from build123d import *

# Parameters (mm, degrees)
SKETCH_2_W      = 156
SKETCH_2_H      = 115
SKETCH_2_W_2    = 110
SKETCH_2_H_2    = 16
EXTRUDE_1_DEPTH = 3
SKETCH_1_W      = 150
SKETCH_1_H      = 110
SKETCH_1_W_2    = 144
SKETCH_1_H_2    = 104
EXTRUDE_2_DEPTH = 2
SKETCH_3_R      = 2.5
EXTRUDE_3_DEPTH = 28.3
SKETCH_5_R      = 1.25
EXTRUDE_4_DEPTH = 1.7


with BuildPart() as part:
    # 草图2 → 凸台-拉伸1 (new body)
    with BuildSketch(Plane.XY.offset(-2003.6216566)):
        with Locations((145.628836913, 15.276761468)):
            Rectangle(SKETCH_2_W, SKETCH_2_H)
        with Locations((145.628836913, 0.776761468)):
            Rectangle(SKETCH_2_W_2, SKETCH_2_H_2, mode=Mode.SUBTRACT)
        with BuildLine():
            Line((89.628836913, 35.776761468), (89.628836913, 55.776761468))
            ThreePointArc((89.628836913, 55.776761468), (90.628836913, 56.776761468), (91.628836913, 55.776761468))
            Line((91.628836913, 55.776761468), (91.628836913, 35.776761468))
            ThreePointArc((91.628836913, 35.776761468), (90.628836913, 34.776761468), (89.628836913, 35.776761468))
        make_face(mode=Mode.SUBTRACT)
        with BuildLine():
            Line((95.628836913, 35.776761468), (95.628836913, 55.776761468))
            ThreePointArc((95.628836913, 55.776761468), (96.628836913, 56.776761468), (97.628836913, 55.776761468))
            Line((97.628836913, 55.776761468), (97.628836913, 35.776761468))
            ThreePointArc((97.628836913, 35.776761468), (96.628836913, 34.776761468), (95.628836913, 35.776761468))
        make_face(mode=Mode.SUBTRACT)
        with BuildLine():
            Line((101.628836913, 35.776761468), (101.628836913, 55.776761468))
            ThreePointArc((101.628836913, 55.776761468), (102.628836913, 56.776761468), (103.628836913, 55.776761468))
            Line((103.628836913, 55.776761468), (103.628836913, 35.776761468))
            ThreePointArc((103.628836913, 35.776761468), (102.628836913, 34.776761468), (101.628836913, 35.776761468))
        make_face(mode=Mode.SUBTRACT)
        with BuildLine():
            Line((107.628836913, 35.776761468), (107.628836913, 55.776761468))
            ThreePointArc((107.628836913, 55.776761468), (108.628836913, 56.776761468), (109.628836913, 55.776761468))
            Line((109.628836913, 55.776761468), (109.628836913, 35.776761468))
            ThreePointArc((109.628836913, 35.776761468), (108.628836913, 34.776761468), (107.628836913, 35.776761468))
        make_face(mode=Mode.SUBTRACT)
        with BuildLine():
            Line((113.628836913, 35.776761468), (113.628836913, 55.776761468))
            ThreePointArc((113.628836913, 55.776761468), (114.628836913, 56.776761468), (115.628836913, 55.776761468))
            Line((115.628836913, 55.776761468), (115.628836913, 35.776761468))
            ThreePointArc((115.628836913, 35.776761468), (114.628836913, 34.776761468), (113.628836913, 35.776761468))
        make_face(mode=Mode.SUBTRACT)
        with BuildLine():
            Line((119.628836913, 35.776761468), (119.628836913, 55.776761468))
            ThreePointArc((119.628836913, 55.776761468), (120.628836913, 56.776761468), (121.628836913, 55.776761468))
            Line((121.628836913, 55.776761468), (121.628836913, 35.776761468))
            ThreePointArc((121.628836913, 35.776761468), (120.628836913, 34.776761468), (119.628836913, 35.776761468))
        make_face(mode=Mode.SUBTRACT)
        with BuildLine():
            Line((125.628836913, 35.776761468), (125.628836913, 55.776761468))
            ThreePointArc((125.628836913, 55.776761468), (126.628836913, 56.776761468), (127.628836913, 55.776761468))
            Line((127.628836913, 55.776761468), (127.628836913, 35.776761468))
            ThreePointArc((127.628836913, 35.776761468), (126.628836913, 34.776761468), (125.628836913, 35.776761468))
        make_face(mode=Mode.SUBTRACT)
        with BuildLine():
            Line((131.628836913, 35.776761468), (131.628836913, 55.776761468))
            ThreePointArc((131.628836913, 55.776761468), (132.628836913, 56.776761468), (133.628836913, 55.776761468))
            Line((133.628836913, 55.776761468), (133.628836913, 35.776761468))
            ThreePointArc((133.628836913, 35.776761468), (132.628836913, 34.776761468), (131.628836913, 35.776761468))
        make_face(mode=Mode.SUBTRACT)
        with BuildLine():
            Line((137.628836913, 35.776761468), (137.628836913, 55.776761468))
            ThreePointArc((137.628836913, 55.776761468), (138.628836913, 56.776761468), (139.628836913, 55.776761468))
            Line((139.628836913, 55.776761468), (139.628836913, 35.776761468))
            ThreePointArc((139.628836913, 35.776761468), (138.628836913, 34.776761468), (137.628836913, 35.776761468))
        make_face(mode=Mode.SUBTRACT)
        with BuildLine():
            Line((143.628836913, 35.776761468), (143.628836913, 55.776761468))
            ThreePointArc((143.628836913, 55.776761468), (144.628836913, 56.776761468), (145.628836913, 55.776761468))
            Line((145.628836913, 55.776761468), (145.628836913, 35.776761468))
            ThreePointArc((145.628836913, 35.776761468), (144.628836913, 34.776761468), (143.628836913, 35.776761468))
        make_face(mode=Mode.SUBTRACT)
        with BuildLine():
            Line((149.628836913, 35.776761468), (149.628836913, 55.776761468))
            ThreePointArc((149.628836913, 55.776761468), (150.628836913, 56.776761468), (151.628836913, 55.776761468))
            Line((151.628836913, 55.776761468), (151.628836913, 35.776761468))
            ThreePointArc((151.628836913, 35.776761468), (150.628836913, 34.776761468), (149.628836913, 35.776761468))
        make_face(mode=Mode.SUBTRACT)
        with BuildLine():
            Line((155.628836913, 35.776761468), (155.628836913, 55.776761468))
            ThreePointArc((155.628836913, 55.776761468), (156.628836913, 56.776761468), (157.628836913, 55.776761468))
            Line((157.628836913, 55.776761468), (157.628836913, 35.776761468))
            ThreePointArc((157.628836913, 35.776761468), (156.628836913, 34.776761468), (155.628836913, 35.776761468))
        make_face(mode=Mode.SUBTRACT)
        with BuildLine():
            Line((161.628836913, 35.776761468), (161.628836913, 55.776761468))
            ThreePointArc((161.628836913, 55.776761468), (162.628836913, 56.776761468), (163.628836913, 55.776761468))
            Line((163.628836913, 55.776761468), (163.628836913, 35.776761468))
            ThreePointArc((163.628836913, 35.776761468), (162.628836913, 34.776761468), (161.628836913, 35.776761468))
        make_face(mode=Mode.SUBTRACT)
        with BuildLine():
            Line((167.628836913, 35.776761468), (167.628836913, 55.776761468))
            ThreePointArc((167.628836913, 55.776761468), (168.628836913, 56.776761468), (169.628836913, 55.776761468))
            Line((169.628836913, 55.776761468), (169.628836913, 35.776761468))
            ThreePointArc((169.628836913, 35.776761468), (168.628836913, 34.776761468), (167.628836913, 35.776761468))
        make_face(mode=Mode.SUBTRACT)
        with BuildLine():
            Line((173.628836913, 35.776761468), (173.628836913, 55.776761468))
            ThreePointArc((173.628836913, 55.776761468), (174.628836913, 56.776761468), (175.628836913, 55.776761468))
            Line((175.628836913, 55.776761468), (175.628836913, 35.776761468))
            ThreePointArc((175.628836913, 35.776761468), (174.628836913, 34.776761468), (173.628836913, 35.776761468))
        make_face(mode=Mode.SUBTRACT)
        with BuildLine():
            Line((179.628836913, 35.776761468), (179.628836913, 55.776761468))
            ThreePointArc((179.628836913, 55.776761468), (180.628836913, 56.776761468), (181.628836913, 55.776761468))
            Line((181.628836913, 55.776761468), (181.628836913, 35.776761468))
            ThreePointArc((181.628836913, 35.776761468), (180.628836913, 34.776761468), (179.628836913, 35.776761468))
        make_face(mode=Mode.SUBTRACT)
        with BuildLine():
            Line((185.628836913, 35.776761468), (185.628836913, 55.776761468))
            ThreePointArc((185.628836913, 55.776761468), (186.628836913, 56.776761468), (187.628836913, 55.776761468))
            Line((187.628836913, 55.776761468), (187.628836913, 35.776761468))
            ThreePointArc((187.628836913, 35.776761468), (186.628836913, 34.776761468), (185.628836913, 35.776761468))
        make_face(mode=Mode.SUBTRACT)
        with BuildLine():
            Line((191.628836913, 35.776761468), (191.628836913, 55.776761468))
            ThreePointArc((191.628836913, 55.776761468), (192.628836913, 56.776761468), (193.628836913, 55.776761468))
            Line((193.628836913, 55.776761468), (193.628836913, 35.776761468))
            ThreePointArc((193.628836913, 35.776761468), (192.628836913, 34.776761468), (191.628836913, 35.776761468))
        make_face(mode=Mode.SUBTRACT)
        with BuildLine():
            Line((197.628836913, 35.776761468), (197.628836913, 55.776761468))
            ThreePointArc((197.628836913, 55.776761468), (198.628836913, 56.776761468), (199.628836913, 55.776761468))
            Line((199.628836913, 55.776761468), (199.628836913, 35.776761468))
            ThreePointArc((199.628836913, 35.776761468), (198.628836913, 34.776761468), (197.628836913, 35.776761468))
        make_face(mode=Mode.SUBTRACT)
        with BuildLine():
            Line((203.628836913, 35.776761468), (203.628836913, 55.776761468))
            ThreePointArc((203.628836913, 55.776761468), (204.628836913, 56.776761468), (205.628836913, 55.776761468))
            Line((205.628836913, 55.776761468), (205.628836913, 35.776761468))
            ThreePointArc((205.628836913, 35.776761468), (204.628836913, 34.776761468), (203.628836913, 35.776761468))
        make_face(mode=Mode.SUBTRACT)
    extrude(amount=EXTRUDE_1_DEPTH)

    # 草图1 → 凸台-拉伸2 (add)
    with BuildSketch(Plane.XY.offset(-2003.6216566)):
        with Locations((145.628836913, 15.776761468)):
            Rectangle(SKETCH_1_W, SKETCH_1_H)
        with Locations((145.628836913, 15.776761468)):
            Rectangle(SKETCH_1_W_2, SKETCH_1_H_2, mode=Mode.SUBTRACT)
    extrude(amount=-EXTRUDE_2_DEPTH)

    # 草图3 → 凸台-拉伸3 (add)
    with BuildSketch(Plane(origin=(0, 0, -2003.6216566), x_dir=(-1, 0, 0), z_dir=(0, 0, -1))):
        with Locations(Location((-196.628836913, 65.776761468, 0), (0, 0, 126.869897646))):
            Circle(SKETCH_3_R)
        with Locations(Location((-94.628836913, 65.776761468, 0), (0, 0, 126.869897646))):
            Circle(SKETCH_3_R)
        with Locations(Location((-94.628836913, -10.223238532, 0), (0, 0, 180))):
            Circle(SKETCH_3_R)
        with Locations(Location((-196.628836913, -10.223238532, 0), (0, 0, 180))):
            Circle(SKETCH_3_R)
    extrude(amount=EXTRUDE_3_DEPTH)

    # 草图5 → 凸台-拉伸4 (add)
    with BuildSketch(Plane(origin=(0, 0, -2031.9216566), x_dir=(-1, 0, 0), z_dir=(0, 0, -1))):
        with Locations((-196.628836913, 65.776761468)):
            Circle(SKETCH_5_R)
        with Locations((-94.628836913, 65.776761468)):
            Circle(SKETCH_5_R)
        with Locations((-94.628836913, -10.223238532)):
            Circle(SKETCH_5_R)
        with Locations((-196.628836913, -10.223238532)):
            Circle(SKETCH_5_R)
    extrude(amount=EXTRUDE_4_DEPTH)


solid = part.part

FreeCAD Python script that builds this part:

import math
import FreeCAD as App
import Part
import Sketcher
Q = App.Units.Quantity

doc = App.newDocument("Part")
body = doc.addObject("PartDesign::Body", "Body")

sketch1 = doc.addObject("Sketcher::SketchObject", "Sketch")
body.addObject(sketch1)
sketch1.AttachmentSupport = (doc.XY_Plane, [""])
sketch1.MapMode = "FlatFace"
sketch1.AttachmentOffset = App.Placement(App.Vector(0, 0, -2003.621657), App.Rotation())
sketch1.addGeometry(Part.LineSegment(App.Vector(67.6, 72.8, 0), App.Vector(67.6, -42.2, 0)), False)
sketch1.addGeometry(Part.LineSegment(App.Vector(67.6, -42.2, 0), App.Vector(223.6, -42.2, 0)), False)
sketch1.addGeometry(Part.LineSegment(App.Vector(223.6, -42.2, 0), App.Vector(223.6, 72.8, 0)), False)
sketch1.addGeometry(Part.LineSegment(App.Vector(223.6, 72.8, 0), App.Vector(67.6, 72.8, 0)), False)
sketch1.addGeometry(Part.LineSegment(App.Vector(200.6, -7.2, 0), App.Vector(90.6, -7.2, 0)), False)
sketch1.addGeometry(Part.LineSegment(App.Vector(90.6, -7.2, 0), App.Vector(90.6, 8.8, 0)), False)
sketch1.addGeometry(Part.LineSegment(App.Vector(90.6, 8.8, 0), App.Vector(200.6, 8.8, 0)), False)
sketch1.addGeometry(Part.LineSegment(App.Vector(200.6, 8.8, 0), App.Vector(200.6, -7.2, 0)), False)
sketch1.addGeometry(Part.ArcOfCircle(Part.Circle(App.Vector(90.6, 35.8, 0), App.Vector(0, 0, 1), 1), math.radians(180), math.radians(360)), False)
sketch1.addGeometry(Part.LineSegment(App.Vector(89.6, 35.8, 0), App.Vector(89.6, 55.8, 0)), False)
sketch1.addGeometry(Part.ArcOfCircle(Part.Circle(App.Vector(90.6, 55.8, 0), App.Vector(0, 0, 1), 1), math.radians(0), math.radians(180)), False)
sketch1.addGeometry(Part.LineSegment(App.Vector(91.6, 55.8, 0), App.Vector(91.6, 35.8, 0)), False)
sketch1.addGeometry(Part.ArcOfCircle(Part.Circle(App.Vector(96.6, 35.8, 0), App.Vector(0, 0, 1), 1), math.radians(180), math.radians(360)), False)
sketch1.addGeometry(Part.LineSegment(App.Vector(95.6, 35.8, 0), App.Vector(95.6, 55.8, 0)), False)
sketch1.addGeometry(Part.ArcOfCircle(Part.Circle(App.Vector(96.6, 55.8, 0), App.Vector(0, 0, 1), 1), math.radians(0), math.radians(180)), False)
sketch1.addGeometry(Part.LineSegment(App.Vector(97.6, 55.8, 0), App.Vector(97.6, 35.8, 0)), False)
sketch1.addGeometry(Part.ArcOfCircle(Part.Circle(App.Vector(102.6, 35.8, 0), App.Vector(0, 0, 1), 1), math.radians(180), math.radians(360)), False)
sketch1.addGeometry(Part.LineSegment(App.Vector(101.6, 35.8, 0), App.Vector(101.6, 55.8, 0)), False)
sketch1.addGeometry(Part.ArcOfCircle(Part.Circle(App.Vector(102.6, 55.8, 0), App.Vector(0, 0, 1), 1), math.radians(0), math.radians(180)), False)
sketch1.addGeometry(Part.LineSegment(App.Vector(103.6, 55.8, 0), App.Vector(103.6, 35.8, 0)), False)
sketch1.addGeometry(Part.ArcOfCircle(Part.Circle(App.Vector(108.6, 35.8, 0), App.Vector(0, 0, 1), 1), math.radians(180), math.radians(360)), False)
sketch1.addGeometry(Part.LineSegment(App.Vector(107.6, 35.8, 0), App.Vector(107.6, 55.8, 0)), False)
sketch1.addGeometry(Part.ArcOfCircle(Part.Circle(App.Vector(108.6, 55.8, 0), App.Vector(0, 0, 1), 1), math.radians(0), math.radians(180)), False)
sketch1.addGeometry(Part.LineSegment(App.Vector(109.6, 55.8, 0), App.Vector(109.6, 35.8, 0)), False)
sketch1.addGeometry(Part.ArcOfCircle(Part.Circle(App.Vector(114.6, 35.8, 0), App.Vector(0, 0, 1), 1), math.radians(180), math.radians(360)), False)
sketch1.addGeometry(Part.LineSegment(App.Vector(113.6, 35.8, 0), App.Vector(113.6, 55.8, 0)), False)
sketch1.addGeometry(Part.ArcOfCircle(Part.Circle(App.Vector(114.6, 55.8, 0), App.Vector(0, 0, 1), 1), math.radians(0), math.radians(180)), False)
sketch1.addGeometry(Part.LineSegment(App.Vector(115.6, 55.8, 0), App.Vector(115.6, 35.8, 0)), False)
sketch1.addGeometry(Part.ArcOfCircle(Part.Circle(App.Vector(120.6, 35.8, 0), App.Vector(0, 0, 1), 1), math.radians(180), math.radians(360)), False)
sketch1.addGeometry(Part.LineSegment(App.Vector(119.6, 35.8, 0), App.Vector(119.6, 55.8, 0)), False)
sketch1.addGeometry(Part.ArcOfCircle(Part.Circle(App.Vector(120.6, 55.8, 0), App.Vector(0, 0, 1), 1), math.radians(0), math.radians(180)), False)
sketch1.addGeometry(Part.LineSegment(App.Vector(121.6, 55.8, 0), App.Vector(121.6, 35.8, 0)), False)
sketch1.addGeometry(Part.ArcOfCircle(Part.Circle(App.Vector(126.6, 35.8, 0), App.Vector(0, 0, 1), 1), math.radians(180), math.radians(360)), False)
sketch1.addGeometry(Part.LineSegment(App.Vector(125.6, 35.8, 0), App.Vector(125.6, 55.8, 0)), False)
sketch1.addGeometry(Part.ArcOfCircle(Part.Circle(App.Vector(126.6, 55.8, 0), App.Vector(0, 0, 1), 1), math.radians(0), math.radians(180)), False)
sketch1.addGeometry(Part.LineSegment(App.Vector(127.6, 55.8, 0), App.Vector(127.6, 35.8, 0)), False)
sketch1.addGeometry(Part.ArcOfCircle(Part.Circle(App.Vector(132.6, 35.8, 0), App.Vector(0, 0, 1), 1), math.radians(180), math.radians(360)), False)
sketch1.addGeometry(Part.LineSegment(App.Vector(131.6, 35.8, 0), App.Vector(131.6, 55.8, 0)), False)
sketch1.addGeometry(Part.ArcOfCircle(Part.Circle(App.Vector(132.6, 55.8, 0), App.Vector(0, 0, 1), 1), math.radians(0), math.radians(180)), False)
sketch1.addGeometry(Part.LineSegment(App.Vector(133.6, 55.8, 0), App.Vector(133.6, 35.8, 0)), False)
sketch1.addGeometry(Part.ArcOfCircle(Part.Circle(App.Vector(138.6, 35.8, 0), App.Vector(0, 0, 1), 1), math.radians(180), math.radians(360)), False)
sketch1.addGeometry(Part.LineSegment(App.Vector(137.6, 35.8, 0), App.Vector(137.6, 55.8, 0)), False)
sketch1.addGeometry(Part.ArcOfCircle(Part.Circle(App.Vector(138.6, 55.8, 0), App.Vector(0, 0, 1), 1), math.radians(0), math.radians(180)), False)
sketch1.addGeometry(Part.LineSegment(App.Vector(139.6, 55.8, 0), App.Vector(139.6, 35.8, 0)), False)
sketch1.addGeometry(Part.ArcOfCircle(Part.Circle(App.Vector(144.6, 35.8, 0), App.Vector(0, 0, 1), 1), math.radians(180), math.radians(360)), False)
sketch1.addGeometry(Part.LineSegment(App.Vector(143.6, 35.8, 0), App.Vector(143.6, 55.8, 0)), False)
sketch1.addGeometry(Part.ArcOfCircle(Part.Circle(App.Vector(144.6, 55.8, 0), App.Vector(0, 0, 1), 1), math.radians(0), math.radians(180)), False)
sketch1.addGeometry(Part.LineSegment(App.Vector(145.6, 55.8, 0), App.Vector(145.6, 35.8, 0)), False)
sketch1.addGeometry(Part.ArcOfCircle(Part.Circle(App.Vector(150.6, 35.8, 0), App.Vector(0, 0, 1), 1), math.radians(180), math.radians(360)), False)
sketch1.addGeometry(Part.LineSegment(App.Vector(149.6, 35.8, 0), App.Vector(149.6, 55.8, 0)), False)
sketch1.addGeometry(Part.ArcOfCircle(Part.Circle(App.Vector(150.6, 55.8, 0), App.Vector(0, 0, 1), 1), math.radians(0), math.radians(180)), False)
sketch1.addGeometry(Part.LineSegment(App.Vector(151.6, 55.8, 0), App.Vector(151.6, 35.8, 0)), False)
sketch1.addGeometry(Part.ArcOfCircle(Part.Circle(App.Vector(156.6, 35.8, 0), App.Vector(0, 0, 1), 1), math.radians(180), math.radians(360)), False)
sketch1.addGeometry(Part.LineSegment(App.Vector(155.6, 35.8, 0), App.Vector(155.6, 55.8, 0)), False)
sketch1.addGeometry(Part.ArcOfCircle(Part.Circle(App.Vector(156.6, 55.8, 0), App.Vector(0, 0, 1), 1), math.radians(0), math.radians(180)), False)
sketch1.addGeometry(Part.LineSegment(App.Vector(157.6, 55.8, 0), App.Vector(157.6, 35.8, 0)), False)
sketch1.addGeometry(Part.ArcOfCircle(Part.Circle(App.Vector(162.6, 35.8, 0), App.Vector(0, 0, 1), 1), math.radians(180), math.radians(360)), False)
sketch1.addGeometry(Part.LineSegment(App.Vector(161.6, 35.8, 0), App.Vector(161.6, 55.8, 0)), False)
sketch1.addGeometry(Part.ArcOfCircle(Part.Circle(App.Vector(162.6, 55.8, 0), App.Vector(0, 0, 1), 1), math.radians(0), math.radians(180)), False)
sketch1.addGeometry(Part.LineSegment(App.Vector(163.6, 55.8, 0), App.Vector(163.6, 35.8, 0)), False)
sketch1.addGeometry(Part.ArcOfCircle(Part.Circle(App.Vector(168.6, 35.8, 0), App.Vector(0, 0, 1), 1), math.radians(180), math.radians(360)), False)
sketch1.addGeometry(Part.LineSegment(App.Vector(167.6, 35.8, 0), App.Vector(167.6, 55.8, 0)), False)
sketch1.addGeometry(Part.ArcOfCircle(Part.Circle(App.Vector(168.6, 55.8, 0), App.Vector(0, 0, 1), 1), math.radians(0), math.radians(180)), False)
sketch1.addGeometry(Part.LineSegment(App.Vector(169.6, 55.8, 0), App.Vector(169.6, 35.8, 0)), False)
sketch1.addGeometry(Part.ArcOfCircle(Part.Circle(App.Vector(174.6, 35.8, 0), App.Vector(0, 0, 1), 1), math.radians(180), math.radians(360)), False)
sketch1.addGeometry(Part.LineSegment(App.Vector(173.6, 35.8, 0), App.Vector(173.6, 55.8, 0)), False)
sketch1.addGeometry(Part.ArcOfCircle(Part.Circle(App.Vector(174.6, 55.8, 0), App.Vector(0, 0, 1), 1), math.radians(0), math.radians(180)), False)
sketch1.addGeometry(Part.LineSegment(App.Vector(175.6, 55.8, 0), App.Vector(175.6, 35.8, 0)), False)
sketch1.addGeometry(Part.ArcOfCircle(Part.Circle(App.Vector(180.6, 35.8, 0), App.Vector(0, 0, 1), 1), math.radians(180), math.radians(360)), False)
sketch1.addGeometry(Part.LineSegment(App.Vector(179.6, 35.8, 0), App.Vector(179.6, 55.8, 0)), False)
sketch1.addGeometry(Part.ArcOfCircle(Part.Circle(App.Vector(180.6, 55.8, 0), App.Vector(0, 0, 1), 1), math.radians(0), math.radians(180)), False)
sketch1.addGeometry(Part.LineSegment(App.Vector(181.6, 55.8, 0), App.Vector(181.6, 35.8, 0)), False)
sketch1.addGeometry(Part.ArcOfCircle(Part.Circle(App.Vector(186.6, 35.8, 0), App.Vector(0, 0, 1), 1), math.radians(180), math.radians(360)), False)
sketch1.addGeometry(Part.LineSegment(App.Vector(185.6, 35.8, 0), App.Vector(185.6, 55.8, 0)), False)
sketch1.addGeometry(Part.ArcOfCircle(Part.Circle(App.Vector(186.6, 55.8, 0), App.Vector(0, 0, 1), 1), math.radians(0), math.radians(180)), False)
sketch1.addGeometry(Part.LineSegment(App.Vector(187.6, 55.8, 0), App.Vector(187.6, 35.8, 0)), False)
sketch1.addGeometry(Part.ArcOfCircle(Part.Circle(App.Vector(192.6, 35.8, 0), App.Vector(0, 0, 1), 1), math.radians(180), math.radians(360)), False)
sketch1.addGeometry(Part.LineSegment(App.Vector(191.6, 35.8, 0), App.Vector(191.6, 55.8, 0)), False)
sketch1.addGeometry(Part.ArcOfCircle(Part.Circle(App.Vector(192.6, 55.8, 0), App.Vector(0, 0, 1), 1), math.radians(0), math.radians(180)), False)
sketch1.addGeometry(Part.LineSegment(App.Vector(193.6, 55.8, 0), App.Vector(193.6, 35.8, 0)), False)
sketch1.addGeometry(Part.ArcOfCircle(Part.Circle(App.Vector(198.6, 35.8, 0), App.Vector(0, 0, 1), 1), math.radians(180), math.radians(360)), False)
sketch1.addGeometry(Part.LineSegment(App.Vector(197.6, 35.8, 0), App.Vector(197.6, 55.8, 0)), False)
sketch1.addGeometry(Part.ArcOfCircle(Part.Circle(App.Vector(198.6, 55.8, 0), App.Vector(0, 0, 1), 1), math.radians(0), math.radians(180)), False)
sketch1.addGeometry(Part.LineSegment(App.Vector(199.6, 55.8, 0), App.Vector(199.6, 35.8, 0)), False)
sketch1.addGeometry(Part.ArcOfCircle(Part.Circle(App.Vector(204.6, 35.8, 0), App.Vector(0, 0, 1), 1), math.radians(180), math.radians(360)), False)
sketch1.addGeometry(Part.LineSegment(App.Vector(203.6, 35.8, 0), App.Vector(203.6, 55.8, 0)), False)
sketch1.addGeometry(Part.ArcOfCircle(Part.Circle(App.Vector(204.6, 55.8, 0), App.Vector(0, 0, 1), 1), math.radians(0), math.radians(180)), False)
sketch1.addGeometry(Part.LineSegment(App.Vector(205.6, 55.8, 0), App.Vector(205.6, 35.8, 0)), False)
sketch1.addConstraint(Sketcher.Constraint("Coincident", 0, 2, 1, 1))
sketch1.addConstraint(Sketcher.Constraint("Coincident", 1, 2, 2, 1))
sketch1.addConstraint(Sketcher.Constraint("Coincident", 2, 2, 3, 1))
sketch1.addConstraint(Sketcher.Constraint("Coincident", 3, 2, 0, 1))
sketch1.addConstraint(Sketcher.Constraint("Coincident", 4, 2, 5, 1))
sketch1.addConstraint(Sketcher.Constraint("Coincident", 5, 2, 6, 1))
sketch1.addConstraint(Sketcher.Constraint("Coincident", 6, 2, 7, 1))
sketch1.addConstraint(Sketcher.Constraint("Coincident", 7, 2, 4, 1))
sketch1.addConstraint(Sketcher.Constraint("Tangent", 8, 1, 9, 1))
sketch1.addConstraint(Sketcher.Constraint("Tangent", 9, 2, 10, 2))
sketch1.addConstraint(Sketcher.Constraint("Tangent", 10, 1, 11, 1))
sketch1.addConstraint(Sketcher.Constraint("Tangent", 11, 2, 8, 2))
sketch1.addConstraint(Sketcher.Constraint("Tangent", 12, 1, 13, 1))
sketch1.addConstraint(Sketcher.Constraint("Tangent", 13, 2, 14, 2))
sketch1.addConstraint(Sketcher.Constraint("Tangent", 14, 1, 15, 1))
sketch1.addConstraint(Sketcher.Constraint("Tangent", 15, 2, 12, 2))
sketch1.addConstraint(Sketcher.Constraint("Tangent", 16, 1, 17, 1))
sketch1.addConstraint(Sketcher.Constraint("Tangent", 17, 2, 18, 2))
sketch1.addConstraint(Sketcher.Constraint("Tangent", 18, 1, 19, 1))
sketch1.addConstraint(Sketcher.Constraint("Tangent", 19, 2, 16, 2))
sketch1.addConstraint(Sketcher.Constraint("Tangent", 20, 1, 21, 1))
sketch1.addConstraint(Sketcher.Constraint("Tangent", 21, 2, 22, 2))
sketch1.addConstraint(Sketcher.Constraint("Tangent", 22, 1, 23, 1))
sketch1.addConstraint(Sketcher.Constraint("Tangent", 23, 2, 20, 2))
sketch1.addConstraint(Sketcher.Constraint("Tangent", 24, 1, 25, 1))
sketch1.addConstraint(Sketcher.Constraint("Tangent", 25, 2, 26, 2))
sketch1.addConstraint(Sketcher.Constraint("Tangent", 26, 1, 27, 1))
sketch1.addConstraint(Sketcher.Constraint("Tangent", 27, 2, 24, 2))
sketch1.addConstraint(Sketcher.Constraint("Tangent", 28, 1, 29, 1))
sketch1.addConstraint(Sketcher.Constraint("Tangent", 29, 2, 30, 2))
sketch1.addConstraint(Sketcher.Constraint("Tangent", 30, 1, 31, 1))
sketch1.addConstraint(Sketcher.Constraint("Tangent", 31, 2, 28, 2))
sketch1.addConstraint(Sketcher.Constraint("Tangent", 32, 1, 33, 1))
sketch1.addConstraint(Sketcher.Constraint("Tangent", 33, 2, 34, 2))
sketch1.addConstraint(Sketcher.Constraint("Tangent", 34, 1, 35, 1))
sketch1.addConstraint(Sketcher.Constraint("Tangent", 35, 2, 32, 2))
sketch1.addConstraint(Sketcher.Constraint("Tangent", 36, 1, 37, 1))
sketch1.addConstraint(Sketcher.Constraint("Tangent", 37, 2, 38, 2))
sketch1.addConstraint(Sketcher.Constraint("Tangent", 38, 1, 39, 1))
sketch1.addConstraint(Sketcher.Constraint("Tangent", 39, 2, 36, 2))
sketch1.addConstraint(Sketcher.Constraint("Tangent", 40, 1, 41, 1))
sketch1.addConstraint(Sketcher.Constraint("Tangent", 41, 2, 42, 2))
sketch1.addConstraint(Sketcher.Constraint("Tangent", 42, 1, 43, 1))
sketch1.addConstraint(Sketcher.Constraint("Tangent", 43, 2, 40, 2))
sketch1.addConstraint(Sketcher.Constraint("Tangent", 44, 1, 45, 1))
sketch1.addConstraint(Sketcher.Constraint("Tangent", 45, 2, 46, 2))
sketch1.addConstraint(Sketcher.Constraint("Tangent", 46, 1, 47, 1))
sketch1.addConstraint(Sketcher.Constraint("Tangent", 47, 2, 44, 2))
sketch1.addConstraint(Sketcher.Constraint("Tangent", 48, 1, 49, 1))
sketch1.addConstraint(Sketcher.Constraint("Tangent", 49, 2, 50, 2))
sketch1.addConstraint(Sketcher.Constraint("Tangent", 50, 1, 51, 1))
sketch1.addConstraint(Sketcher.Constraint("Tangent", 51, 2, 48, 2))
sketch1.addConstraint(Sketcher.Constraint("Tangent", 52, 1, 53, 1))
sketch1.addConstraint(Sketcher.Constraint("Tangent", 53, 2, 54, 2))
sketch1.addConstraint(Sketcher.Constraint("Tangent", 54, 1, 55, 1))
sketch1.addConstraint(Sketcher.Constraint("Tangent", 55, 2, 52, 2))
sketch1.addConstraint(Sketcher.Constraint("Tangent", 56, 1, 57, 1))
sketch1.addConstraint(Sketcher.Constraint("Tangent", 57, 2, 58, 2))
sketch1.addConstraint(Sketcher.Constraint("Tangent", 58, 1, 59, 1))
sketch1.addConstraint(Sketcher.Constraint("Tangent", 59, 2, 56, 2))
sketch1.addConstraint(Sketcher.Constraint("Tangent", 60, 1, 61, 1))
sketch1.addConstraint(Sketcher.Constraint("Tangent", 61, 2, 62, 2))
sketch1.addConstraint(Sketcher.Constraint("Tangent", 62, 1, 63, 1))
sketch1.addConstraint(Sketcher.Constraint("Tangent", 63, 2, 60, 2))
sketch1.addConstraint(Sketcher.Constraint("Tangent", 64, 1, 65, 1))
sketch1.addConstraint(Sketcher.Constraint("Tangent", 65, 2, 66, 2))
sketch1.addConstraint(Sketcher.Constraint("Tangent", 66, 1, 67, 1))
sketch1.addConstraint(Sketcher.Constraint("Tangent", 67, 2, 64, 2))
sketch1.addConstraint(Sketcher.Constraint("Tangent", 68, 1, 69, 1))
sketch1.addConstraint(Sketcher.Constraint("Tangent", 69, 2, 70, 2))
sketch1.addConstraint(Sketcher.Constraint("Tangent", 70, 1, 71, 1))
sketch1.addConstraint(Sketcher.Constraint("Tangent", 71, 2, 68, 2))
sketch1.addConstraint(Sketcher.Constraint("Tangent", 72, 1, 73, 1))
sketch1.addConstraint(Sketcher.Constraint("Tangent", 73, 2, 74, 2))
sketch1.addConstraint(Sketcher.Constraint("Tangent", 74, 1, 75, 1))
sketch1.addConstraint(Sketcher.Constraint("Tangent", 75, 2, 72, 2))
sketch1.addConstraint(Sketcher.Constraint("Tangent", 76, 1, 77, 1))
sketch1.addConstraint(Sketcher.Constraint("Tangent", 77, 2, 78, 2))
sketch1.addConstraint(Sketcher.Constraint("Tangent", 78, 1, 79, 1))
sketch1.addConstraint(Sketcher.Constraint("Tangent", 79, 2, 76, 2))
sketch1.addConstraint(Sketcher.Constraint("Tangent", 80, 1, 81, 1))
sketch1.addConstraint(Sketcher.Constraint("Tangent", 81, 2, 82, 2))
sketch1.addConstraint(Sketcher.Constraint("Tangent", 82, 1, 83, 1))
sketch1.addConstraint(Sketcher.Constraint("Tangent", 83, 2, 80, 2))
sketch1.addConstraint(Sketcher.Constraint("Tangent", 84, 1, 85, 1))
sketch1.addConstraint(Sketcher.Constraint("Tangent", 85, 2, 86, 2))
sketch1.addConstraint(Sketcher.Constraint("Tangent", 86, 1, 87, 1))
sketch1.addConstraint(Sketcher.Constraint("Tangent", 87, 2, 84, 2))
sketch1.addConstraint(Sketcher.Constraint("Vertical", 0))
sketch1.addConstraint(Sketcher.Constraint("Horizontal", 1))
sketch1.addConstraint(Sketcher.Constraint("Vertical", 2))
sketch1.addConstraint(Sketcher.Constraint("Horizontal", 3))
sketch1.addConstraint(Sketcher.Constraint("Horizontal", 4))
sketch1.addConstraint(Sketcher.Constraint("Vertical", 5))
sketch1.addConstraint(Sketcher.Constraint("Horizontal", 6))
sketch1.addConstraint(Sketcher.Constraint("Vertical", 7))
sketch1.addConstraint(Sketcher.Constraint("Vertical", 9))
sketch1.addConstraint(Sketcher.Constraint("Vertical", 11))
sketch1.addConstraint(Sketcher.Constraint("Vertical", 13))
sketch1.addConstraint(Sketcher.Constraint("Vertical", 15))
sketch1.addConstraint(Sketcher.Constraint("Vertical", 17))
sketch1.addConstraint(Sketcher.Constraint("Vertical", 19))
sketch1.addConstraint(Sketcher.Constraint("Vertical", 21))
sketch1.addConstraint(Sketcher.Constraint("Vertical", 23))
sketch1.addConstraint(Sketcher.Constraint("Vertical", 25))
sketch1.addConstraint(Sketcher.Constraint("Vertical", 27))
sketch1.addConstraint(Sketcher.Constraint("Vertical", 29))
sketch1.addConstraint(Sketcher.Constraint("Vertical", 31))
sketch1.addConstraint(Sketcher.Constraint("Vertical", 33))
sketch1.addConstraint(Sketcher.Constraint("Vertical", 35))
sketch1.addConstraint(Sketcher.Constraint("Vertical", 37))
sketch1.addConstraint(Sketcher.Constraint("Vertical", 39))
sketch1.addConstraint(Sketcher.Constraint("Vertical", 41))
sketch1.addConstraint(Sketcher.Constraint("Vertical", 43))
sketch1.addConstraint(Sketcher.Constraint("Vertical", 45))
sketch1.addConstraint(Sketcher.Constraint("Vertical", 47))
sketch1.addConstraint(Sketcher.Constraint("Vertical", 49))
sketch1.addConstraint(Sketcher.Constraint("Vertical", 51))
sketch1.addConstraint(Sketcher.Constraint("Vertical", 53))
sketch1.addConstraint(Sketcher.Constraint("Vertical", 55))
sketch1.addConstraint(Sketcher.Constraint("Vertical", 57))
sketch1.addConstraint(Sketcher.Constraint("Vertical", 59))
sketch1.addConstraint(Sketcher.Constraint("Vertical", 61))
sketch1.addConstraint(Sketcher.Constraint("Vertical", 63))
sketch1.addConstraint(Sketcher.Constraint("Vertical", 65))
sketch1.addConstraint(Sketcher.Constraint("Vertical", 67))
sketch1.addConstraint(Sketcher.Constraint("Vertical", 69))
sketch1.addConstraint(Sketcher.Constraint("Vertical", 71))
sketch1.addConstraint(Sketcher.Constraint("Vertical", 73))
sketch1.addConstraint(Sketcher.Constraint("Vertical", 75))
sketch1.addConstraint(Sketcher.Constraint("Vertical", 77))
sketch1.addConstraint(Sketcher.Constraint("Vertical", 79))
sketch1.addConstraint(Sketcher.Constraint("Vertical", 81))
sketch1.addConstraint(Sketcher.Constraint("Vertical", 83))
sketch1.addConstraint(Sketcher.Constraint("Vertical", 85))
sketch1.addConstraint(Sketcher.Constraint("Vertical", 87))
sketch1.addConstraint(Sketcher.Constraint("Equal", 10, 12))
sketch1.addConstraint(Sketcher.Constraint("Equal", 14, 16))
sketch1.addConstraint(Sketcher.Constraint("Equal", 18, 20))
sketch1.addConstraint(Sketcher.Constraint("Equal", 22, 24))
sketch1.addConstraint(Sketcher.Constraint("Equal", 26, 28))
sketch1.addConstraint(Sketcher.Constraint("Equal", 30, 32))
sketch1.addConstraint(Sketcher.Constraint("Equal", 34, 36))
sketch1.addConstraint(Sketcher.Constraint("Equal", 38, 40))
sketch1.addConstraint(Sketcher.Constraint("Equal", 42, 44))
sketch1.addConstraint(Sketcher.Constraint("Equal", 46, 48))
sketch1.addConstraint(Sketcher.Constraint("Equal", 50, 52))
sketch1.addConstraint(Sketcher.Constraint("Equal", 54, 56))
sketch1.addConstraint(Sketcher.Constraint("Equal", 58, 60))
sketch1.addConstraint(Sketcher.Constraint("Equal", 62, 64))
sketch1.addConstraint(Sketcher.Constraint("Equal", 66, 68))
sketch1.addConstraint(Sketcher.Constraint("Equal", 70, 72))
sketch1.addConstraint(Sketcher.Constraint("Equal", 74, 76))
sketch1.addConstraint(Sketcher.Constraint("Equal", 78, 80))
sketch1.addConstraint(Sketcher.Constraint("Equal", 82, 84))
sketch1.addConstraint(Sketcher.Constraint("Horizontal", 8, 3, 12, 3))
sketch1.addConstraint(Sketcher.Constraint("Horizontal", 10, 3, 14, 3))
sketch1.addConstraint(Sketcher.Constraint("Horizontal", 12, 3, 16, 3))
sketch1.addConstraint(Sketcher.Constraint("Horizontal", 14, 3, 18, 3))
sketch1.addConstraint(Sketcher.Constraint("Horizontal", 16, 3, 20, 3))
sketch1.addConstraint(Sketcher.Constraint("Horizontal", 18, 3, 22, 3))
sketch1.addConstraint(Sketcher.Constraint("Horizontal", 20, 3, 24, 3))
sketch1.addConstraint(Sketcher.Constraint("Horizontal", 22, 3, 26, 3))
sketch1.addConstraint(Sketcher.Constraint("Horizontal", 24, 3, 28, 3))
sketch1.addConstraint(Sketcher.Constraint("Horizontal", 26, 3, 30, 3))
sketch1.addConstraint(Sketcher.Constraint("Horizontal", 28, 3, 32, 3))
sketch1.addConstraint(Sketcher.Constraint("Horizontal", 30, 3, 34, 3))
sketch1.addConstraint(Sketcher.Constraint("Horizontal", 32, 3, 36, 3))
sketch1.addConstraint(Sketcher.Constraint("Horizontal", 34, 3, 38, 3))
sketch1.addConstraint(Sketcher.Constraint("Horizontal", 36, 3, 40, 3))
sketch1.addConstraint(Sketcher.Constraint("Horizontal", 38, 3, 42, 3))
sketch1.addConstraint(Sketcher.Constraint("Horizontal", 40, 3, 44, 3))
sketch1.addConstraint(Sketcher.Constraint("Horizontal", 42, 3, 46, 3))
sketch1.addConstraint(Sketcher.Constraint("Horizontal", 44, 3, 48, 3))
sketch1.addConstraint(Sketcher.Constraint("Horizontal", 46, 3, 50, 3))
sketch1.addConstraint(Sketcher.Constraint("Horizontal", 48, 3, 52, 3))
sketch1.addConstraint(Sketcher.Constraint("Horizontal", 50, 3, 54, 3))
sketch1.addConstraint(Sketcher.Constraint("Horizontal", 52, 3, 56, 3))
sketch1.addConstraint(Sketcher.Constraint("Horizontal", 54, 3, 58, 3))
sketch1.addConstraint(Sketcher.Constraint("Horizontal", 56, 3, 60, 3))
sketch1.addConstraint(Sketcher.Constraint("Horizontal", 58, 3, 62, 3))
sketch1.addConstraint(Sketcher.Constraint("Horizontal", 60, 3, 64, 3))
sketch1.addConstraint(Sketcher.Constraint("Horizontal", 62, 3, 66, 3))
sketch1.addConstraint(Sketcher.Constraint("Horizontal", 64, 3, 68, 3))
sketch1.addConstraint(Sketcher.Constraint("Horizontal", 66, 3, 70, 3))
sketch1.addConstraint(Sketcher.Constraint("Horizontal", 68, 3, 72, 3))
sketch1.addConstraint(Sketcher.Constraint("Horizontal", 70, 3, 74, 3))
sketch1.addConstraint(Sketcher.Constraint("Horizontal", 72, 3, 76, 3))
sketch1.addConstraint(Sketcher.Constraint("Horizontal", 74, 3, 78, 3))
sketch1.addConstraint(Sketcher.Constraint("Horizontal", 76, 3, 80, 3))
sketch1.addConstraint(Sketcher.Constraint("Horizontal", 78, 3, 82, 3))
sketch1.addConstraint(Sketcher.Constraint("Horizontal", 80, 3, 84, 3))
sketch1.addConstraint(Sketcher.Constraint("Horizontal", 82, 3, 86, 3))
sketch1.addConstraint(Sketcher.Constraint("Vertical", 10, 3, 4, 2))
sketch1.addConstraint(Sketcher.Constraint("Radius", 8, Q("1 mm")))
sketch1.addConstraint(Sketcher.Constraint("DistanceX", 1, 1, 1, 2, Q("156 mm")))
sketch1.addConstraint(Sketcher.Constraint("DistanceX", 4, 2, 4, 1, Q("110 mm")))
sketch1.addConstraint(Sketcher.Constraint("DistanceY", 0, 2, 0, 1, Q("115 mm")))
sketch1.addConstraint(Sketcher.Constraint("DistanceY", 5, 1, 5, 2, Q("16 mm")))
sketch1.addConstraint(Sketcher.Constraint("DistanceY", 9, 1, 9, 2, Q("20 mm")))
sketch1.addConstraint(Sketcher.Constraint("DistanceY", -1, 1, 8, 3, Q("35.776761 mm")))
sketch1.addConstraint(Sketcher.Constraint("DistanceY", 0, 2, -1, 1, Q("42.223239 mm")))
sketch1.addConstraint(Sketcher.Constraint("DistanceY", 4, 2, -1, 1, Q("7.223239 mm")))
sketch1.addConstraint(Sketcher.Constraint("DistanceX", -1, 1, 8, 3, Q("90.628837 mm")))
sketch1.addConstraint(Sketcher.Constraint("DistanceX", -1, 1, 12, 3, Q("96.628837 mm")))
sketch1.addConstraint(Sketcher.Constraint("DistanceX", -1, 1, 16, 3, Q("102.628837 mm")))
sketch1.addConstraint(Sketcher.Constraint("DistanceX", -1, 1, 20, 3, Q("108.628837 mm")))
sketch1.addConstraint(Sketcher.Constraint("DistanceX", -1, 1, 24, 3, Q("114.628837 mm")))
sketch1.addConstraint(Sketcher.Constraint("DistanceX", -1, 1, 28, 3, Q("120.628837 mm")))
sketch1.addConstraint(Sketcher.Constraint("DistanceX", -1, 1, 32, 3, Q("126.628837 mm")))
sketch1.addConstraint(Sketcher.Constraint("DistanceX", -1, 1, 36, 3, Q("132.628837 mm")))
sketch1.addConstraint(Sketcher.Constraint("DistanceX", -1, 1, 40, 3, Q("138.628837 mm")))
sketch1.addConstraint(Sketcher.Constraint("DistanceX", -1, 1, 44, 3, Q("144.628837 mm")))
sketch1.addConstraint(Sketcher.Constraint("DistanceX", -1, 1, 48, 3, Q("150.628837 mm")))
sketch1.addConstraint(Sketcher.Constraint("DistanceX", -1, 1, 52, 3, Q("156.628837 mm")))
sketch1.addConstraint(Sketcher.Constraint("DistanceX", -1, 1, 56, 3, Q("162.628837 mm")))
sketch1.addConstraint(Sketcher.Constraint("DistanceX", -1, 1, 60, 3, Q("168.628837 mm")))
sketch1.addConstraint(Sketcher.Constraint("DistanceX", -1, 1, 64, 3, Q("174.628837 mm")))
sketch1.addConstraint(Sketcher.Constraint("DistanceX", -1, 1, 68, 3, Q("180.628837 mm")))
sketch1.addConstraint(Sketcher.Constraint("DistanceX", -1, 1, 72, 3, Q("186.628837 mm")))
sketch1.addConstraint(Sketcher.Constraint("DistanceX", -1, 1, 76, 3, Q("192.628837 mm")))
sketch1.addConstraint(Sketcher.Constraint("DistanceX", -1, 1, 80, 3, Q("198.628837 mm")))
sketch1.addConstraint(Sketcher.Constraint("DistanceX", -1, 1, 84, 3, Q("204.628837 mm")))
sketch1.addConstraint(Sketcher.Constraint("DistanceX", -1, 1, 0, 2, Q("67.628837 mm")))
pad1 = doc.addObject("PartDesign::Pad", "Pad")
body.addObject(pad1)
pad1.Profile = sketch1
pad1.Length = 3

sketch2 = doc.addObject("Sketcher::SketchObject", "Sketch001")
body.addObject(sketch2)
sketch2.AttachmentSupport = (doc.XY_Plane, [""])
sketch2.MapMode = "FlatFace"
sketch2.AttachmentOffset = App.Placement(App.Vector(0, 0, -2003.621657), App.Rotation())
sketch2.addGeometry(Part.LineSegment(App.Vector(71, 71, 0), App.Vector(71, -39, 0)), False)
sketch2.addGeometry(Part.LineSegment(App.Vector(71, -39, 0), App.Vector(221, -39, 0)), False)
sketch2.addGeometry(Part.LineSegment(App.Vector(221, -39, 0), App.Vector(221, 71, 0)), False)
sketch2.addGeometry(Part.LineSegment(App.Vector(221, 71, 0), App.Vector(71, 71, 0)), False)
sketch2.addGeometry(Part.LineSegment(App.Vector(218, -36, 0), App.Vector(74, -36, 0)), False)
sketch2.addGeometry(Part.LineSegment(App.Vector(74, -36, 0), App.Vector(74, 68, 0)), False)
sketch2.addGeometry(Part.LineSegment(App.Vector(74, 68, 0), App.Vector(218, 68, 0)), False)
sketch2.addGeometry(Part.LineSegment(App.Vector(218, 68, 0), App.Vector(218, -36, 0)), False)
sketch2.addConstraint(Sketcher.Constraint("Coincident", 0, 2, 1, 1))
sketch2.addConstraint(Sketcher.Constraint("Coincident", 1, 2, 2, 1))
sketch2.addConstraint(Sketcher.Constraint("Coincident", 2, 2, 3, 1))
sketch2.addConstraint(Sketcher.Constraint("Coincident", 3, 2, 0, 1))
sketch2.addConstraint(Sketcher.Constraint("Coincident", 4, 2, 5, 1))
sketch2.addConstraint(Sketcher.Constraint("Coincident", 5, 2, 6, 1))
sketch2.addConstraint(Sketcher.Constraint("Coincident", 6, 2, 7, 1))
sketch2.addConstraint(Sketcher.Constraint("Coincident", 7, 2, 4, 1))
sketch2.addConstraint(Sketcher.Constraint("Vertical", 0))
sketch2.addConstraint(Sketcher.Constraint("Horizontal", 1))
sketch2.addConstraint(Sketcher.Constraint("Vertical", 2))
sketch2.addConstraint(Sketcher.Constraint("Horizontal", 3))
sketch2.addConstraint(Sketcher.Constraint("Horizontal", 4))
sketch2.addConstraint(Sketcher.Constraint("Vertical", 5))
sketch2.addConstraint(Sketcher.Constraint("Horizontal", 6))
sketch2.addConstraint(Sketcher.Constraint("Vertical", 7))
sketch2.addConstraint(Sketcher.Constraint("DistanceX", 1, 1, 1, 2, Q("150 mm")))
sketch2.addConstraint(Sketcher.Constraint("DistanceX", 4, 2, 4, 1, Q("144 mm")))
sketch2.addConstraint(Sketcher.Constraint("DistanceY", 0, 2, 0, 1, Q("110 mm")))
sketch2.addConstraint(Sketcher.Constraint("DistanceY", 5, 1, 5, 2, Q("104 mm")))
sketch2.addConstraint(Sketcher.Constraint("DistanceX", 0, 2, 4, 2, Q("3 mm")))
sketch2.addConstraint(Sketcher.Constraint("DistanceY", 0, 2, 4, 2, Q("3 mm")))
sketch2.addConstraint(Sketcher.Constraint("DistanceY", 0, 2, -1, 1, Q("39.223239 mm")))
sketch2.addConstraint(Sketcher.Constraint("DistanceX", -1, 1, 0, 2, Q("70.628837 mm")))
pad2 = doc.addObject("PartDesign::Pad", "Pad001")
body.addObject(pad2)
pad2.Profile = sketch2
pad2.Length = 2
pad2.Reversed = True

sketch3 = doc.addObject("Sketcher::SketchObject", "Sketch002")
body.addObject(sketch3)
sketch3.AttachmentSupport = (doc.XY_Plane, [""])
sketch3.MapMode = "FlatFace"
sketch3.AttachmentOffset = App.Placement(App.Vector(0, 0, -2003.621657), App.Rotation())
sketch3.addGeometry(Part.Circle(App.Vector(196.6, 65.8, 0), App.Vector(0, 0, 1), 2.5), False)
sketch3.addGeometry(Part.Circle(App.Vector(94.6, 65.8, 0), App.Vector(0, 0, 1), 2.5), False)
sketch3.addGeometry(Part.Circle(App.Vector(94.6, -10.2, 0), App.Vector(0, 0, 1), 2.5), False)
sketch3.addGeometry(Part.Circle(App.Vector(196.6, -10.2, 0), App.Vector(0, 0, 1), 2.5), False)
sketch3.addConstraint(Sketcher.Constraint("Equal", 0, 1))
sketch3.addConstraint(Sketcher.Constraint("Equal", 1, 2))
sketch3.addConstraint(Sketcher.Constraint("Equal", 2, 3))
sketch3.addConstraint(Sketcher.Constraint("Horizontal", 0, 3, 1, 3))
sketch3.addConstraint(Sketcher.Constraint("Horizontal", 2, 3, 3, 3))
sketch3.addConstraint(Sketcher.Constraint("Vertical", 1, 3, 2, 3))
sketch3.addConstraint(Sketcher.Constraint("Vertical", 0, 3, 3, 3))
sketch3.addConstraint(Sketcher.Constraint("Diameter", 0, Q("5 mm")))
sketch3.addConstraint(Sketcher.Constraint("DistanceX", 1, 3, 0, 3, Q("102 mm")))
sketch3.addConstraint(Sketcher.Constraint("DistanceY", 2, 3, 1, 3, Q("76 mm")))
sketch3.addConstraint(Sketcher.Constraint("DistanceY", -1, 1, 0, 3, Q("65.776761 mm")))
sketch3.addConstraint(Sketcher.Constraint("DistanceX", -1, 1, 0, 3, Q("196.628837 mm")))
pad3 = doc.addObject("PartDesign::Pad", "Pad002")
body.addObject(pad3)
pad3.Profile = sketch3
pad3.Length = 28.3
pad3.Reversed = True

sketch4 = doc.addObject("Sketcher::SketchObject", "Sketch003")
body.addObject(sketch4)
sketch4.AttachmentSupport = (doc.XY_Plane, [""])
sketch4.MapMode = "FlatFace"
sketch4.AttachmentOffset = App.Placement(App.Vector(0, 0, -2031.921657), App.Rotation())
sketch4.addGeometry(Part.Circle(App.Vector(196.6, 65.8, 0), App.Vector(0, 0, 1), 1.2), False)
sketch4.addGeometry(Part.Circle(App.Vector(94.6, 65.8, 0), App.Vector(0, 0, 1), 1.2), False)
sketch4.addGeometry(Part.Circle(App.Vector(94.6, -10.2, 0), App.Vector(0, 0, 1), 1.2), False)
sketch4.addGeometry(Part.Circle(App.Vector(196.6, -10.2, 0), App.Vector(0, 0, 1), 1.2), False)
sketch4.addConstraint(Sketcher.Constraint("Equal", 0, 1))
sketch4.addConstraint(Sketcher.Constraint("Equal", 1, 2))
sketch4.addConstraint(Sketcher.Constraint("Equal", 2, 3))
sketch4.addConstraint(Sketcher.Constraint("Horizontal", 0, 3, 1, 3))
sketch4.addConstraint(Sketcher.Constraint("Horizontal", 2, 3, 3, 3))
sketch4.addConstraint(Sketcher.Constraint("Vertical", 1, 3, 2, 3))
sketch4.addConstraint(Sketcher.Constraint("Vertical", 0, 3, 3, 3))
sketch4.addConstraint(Sketcher.Constraint("Diameter", 0, Q("2.5 mm")))
sketch4.addConstraint(Sketcher.Constraint("DistanceX", 1, 3, 0, 3, Q("102 mm")))
sketch4.addConstraint(Sketcher.Constraint("DistanceY", 2, 3, 1, 3, Q("76 mm")))
sketch4.addConstraint(Sketcher.Constraint("DistanceY", -1, 1, 0, 3, Q("65.776761 mm")))
sketch4.addConstraint(Sketcher.Constraint("DistanceX", -1, 1, 0, 3, Q("196.628837 mm")))
pad4 = doc.addObject("PartDesign::Pad", "Pad003")
body.addObject(pad4)
pad4.Profile = sketch4
pad4.Length = 1.7
pad4.Reversed = True

doc.recompute()
